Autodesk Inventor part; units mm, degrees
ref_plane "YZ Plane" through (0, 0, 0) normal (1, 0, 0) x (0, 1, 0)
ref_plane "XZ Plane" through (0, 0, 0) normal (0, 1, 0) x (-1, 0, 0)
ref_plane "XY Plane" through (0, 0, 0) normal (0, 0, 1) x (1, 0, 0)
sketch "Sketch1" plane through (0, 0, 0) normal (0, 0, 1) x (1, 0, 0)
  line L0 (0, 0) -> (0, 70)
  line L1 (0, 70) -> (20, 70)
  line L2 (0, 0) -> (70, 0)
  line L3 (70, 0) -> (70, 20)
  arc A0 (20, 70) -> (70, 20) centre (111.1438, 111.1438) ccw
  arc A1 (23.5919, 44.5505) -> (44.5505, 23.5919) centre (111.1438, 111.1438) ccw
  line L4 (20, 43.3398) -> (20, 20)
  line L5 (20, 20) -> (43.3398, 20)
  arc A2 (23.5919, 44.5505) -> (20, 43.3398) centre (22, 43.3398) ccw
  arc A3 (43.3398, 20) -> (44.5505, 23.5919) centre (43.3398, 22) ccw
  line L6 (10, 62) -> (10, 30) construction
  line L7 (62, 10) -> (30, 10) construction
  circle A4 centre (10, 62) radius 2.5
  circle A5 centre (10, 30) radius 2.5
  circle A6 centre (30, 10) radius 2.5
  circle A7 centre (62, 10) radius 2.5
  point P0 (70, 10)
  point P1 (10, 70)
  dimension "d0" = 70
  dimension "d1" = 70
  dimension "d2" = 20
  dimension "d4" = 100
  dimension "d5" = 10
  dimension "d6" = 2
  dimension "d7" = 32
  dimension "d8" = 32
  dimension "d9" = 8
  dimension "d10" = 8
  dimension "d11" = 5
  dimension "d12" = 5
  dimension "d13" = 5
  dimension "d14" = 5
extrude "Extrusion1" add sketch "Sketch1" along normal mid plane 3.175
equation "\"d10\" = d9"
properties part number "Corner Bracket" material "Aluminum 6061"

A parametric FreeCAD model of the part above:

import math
import FreeCAD as App
import Part
import Sketcher
from FreeCAD import Vector
Q = App.Units.Quantity

doc = App.newDocument("Part")
body = doc.addObject("PartDesign::Body", "Body")

# Sketch on XY plane
sketch1 = body.newObject("Sketcher::SketchObject", "Sketch")
sketch1.AttachmentSupport = (doc.getObject("XY_Plane"), [""])
sketch1.MapMode = "FlatFace"
sketch1.addGeometry([
    Part.LineSegment(Vector(0, 70, 0), Vector(0, 0, 0)),  # 0
    Part.LineSegment(Vector(0, 0, 0), Vector(70, 0, 0)),  # 1
    Part.LineSegment(Vector(70, 0, 0), Vector(70, 20, 0)),  # 2
    Part.ArcOfCircle(Part.Circle(Vector(111.1, 111.1, 0), Vector(0, 0, 1), 100), math.radians(-156), math.radians(-114)),  # 3
    Part.LineSegment(Vector(20, 70, 0), Vector(0, 70, 0)),  # 4
    Part.Circle(Vector(30, 10, 0), Vector(0, 0, 1), 2.5),  # 5
    Part.Circle(Vector(10, 30, 0), Vector(0, 0, 1), 2.5),  # 6
    Part.ArcOfCircle(Part.Circle(Vector(22, 43.3, 0), Vector(0, 0, 1), 2), math.radians(37), math.radians(180)),  # 7
    Part.ArcOfCircle(Part.Circle(Vector(111.1, 111.1, 0), Vector(0, 0, 1), 110), math.radians(-142.74), math.radians(-127.26)),  # 8
    Part.ArcOfCircle(Part.Circle(Vector(43.3, 22, 0), Vector(0, 0, 1), 2), math.radians(-90), math.radians(53)),  # 9
    Part.LineSegment(Vector(43.3, 20, 0), Vector(20, 20, 0)),  # 10
    Part.LineSegment(Vector(20, 20, 0), Vector(20, 43.3, 0)),  # 11
    Part.Circle(Vector(62, 10, 0), Vector(0, 0, 1), 2.5),  # 12
    Part.Circle(Vector(10, 62, 0), Vector(0, 0, 1), 2.5),  # 13
], False)
sketch1.addConstraint([
    Sketcher.Constraint("Coincident", 0, 2, 1, 1),
    Sketcher.Constraint("Coincident", 1, 2, 2, 1),
    Sketcher.Constraint("Coincident", 2, 2, 3, 2),
    Sketcher.Constraint("Coincident", 3, 1, 4, 1),
    Sketcher.Constraint("Coincident", 4, 2, 0, 1),
    Sketcher.Constraint("Tangent", 7, 1, 8, 1),
    Sketcher.Constraint("Tangent", 8, 2, 9, 2),
    Sketcher.Constraint("Tangent", 9, 1, 10, 1),
    Sketcher.Constraint("Coincident", 10, 2, 11, 1),
    Sketcher.Constraint("Tangent", 11, 2, 7, 2),
    Sketcher.Constraint("Vertical", 0),
    Sketcher.Constraint("Horizontal", 1),
    Sketcher.Constraint("Vertical", 2),
    Sketcher.Constraint("Horizontal", 4),
    Sketcher.Constraint("Horizontal", 10),
    Sketcher.Constraint("Vertical", 11),
    Sketcher.Constraint("Coincident", 0, 2, -1, 1),
    Sketcher.Constraint("Coincident", 8, 3, 3, 3),
    Sketcher.Constraint("Equal", 5, 6),
    Sketcher.Constraint("Equal", 7, 9),
    Sketcher.Constraint("Equal", 6, 12),
    Sketcher.Constraint("Equal", 12, 13),
    Sketcher.Constraint("Horizontal", 5, 3, 12, 3),
    Sketcher.Constraint("Horizontal", 2, 2, 9, 1),
    Sketcher.Constraint("Vertical", 6, 3, 13, 3),
    Sketcher.Constraint("Vertical", 3, 1, 10, 2),
    Sketcher.Constraint("Equal", 1, 0),
    Sketcher.Constraint("Equal", 4, 2),
    Sketcher.Constraint("Diameter", 5, Q("5 mm")),
    Sketcher.Constraint("Radius", 3, Q("100 mm")),
    Sketcher.Constraint("Radius", 7, Q("2 mm")),
    Sketcher.Constraint("DistanceX", 1, 1, 1, 2, Q("70 mm")),
    Sketcher.Constraint("DistanceX", 4, 2, 4, 1, Q("20 mm")),
    Sketcher.Constraint("DistanceY", -1, 1, 5, 3, Q("10 mm")),
    Sketcher.Constraint("DistanceX", -1, 1, 6, 3, Q("10 mm")),
    Sketcher.Constraint("Radius", 8, Q("110 mm")),
    Sketcher.Constraint("DistanceX", 6, 3, 5, 3, Q("20 mm")),
    Sketcher.Constraint("DistanceY", 5, 3, 6, 3, Q("20 mm")),
    Sketcher.Constraint("DistanceX", 5, 3, 12, 3, Q("32 mm")),
    Sketcher.Constraint("DistanceY", 6, 3, 13, 3, Q("32 mm")),
])
pad1 = body.newObject("PartDesign::Pad", "Pad")
pad1.Profile = sketch1
pad1.Length = 3.175
pad1.Midplane = True

doc.recompute()
